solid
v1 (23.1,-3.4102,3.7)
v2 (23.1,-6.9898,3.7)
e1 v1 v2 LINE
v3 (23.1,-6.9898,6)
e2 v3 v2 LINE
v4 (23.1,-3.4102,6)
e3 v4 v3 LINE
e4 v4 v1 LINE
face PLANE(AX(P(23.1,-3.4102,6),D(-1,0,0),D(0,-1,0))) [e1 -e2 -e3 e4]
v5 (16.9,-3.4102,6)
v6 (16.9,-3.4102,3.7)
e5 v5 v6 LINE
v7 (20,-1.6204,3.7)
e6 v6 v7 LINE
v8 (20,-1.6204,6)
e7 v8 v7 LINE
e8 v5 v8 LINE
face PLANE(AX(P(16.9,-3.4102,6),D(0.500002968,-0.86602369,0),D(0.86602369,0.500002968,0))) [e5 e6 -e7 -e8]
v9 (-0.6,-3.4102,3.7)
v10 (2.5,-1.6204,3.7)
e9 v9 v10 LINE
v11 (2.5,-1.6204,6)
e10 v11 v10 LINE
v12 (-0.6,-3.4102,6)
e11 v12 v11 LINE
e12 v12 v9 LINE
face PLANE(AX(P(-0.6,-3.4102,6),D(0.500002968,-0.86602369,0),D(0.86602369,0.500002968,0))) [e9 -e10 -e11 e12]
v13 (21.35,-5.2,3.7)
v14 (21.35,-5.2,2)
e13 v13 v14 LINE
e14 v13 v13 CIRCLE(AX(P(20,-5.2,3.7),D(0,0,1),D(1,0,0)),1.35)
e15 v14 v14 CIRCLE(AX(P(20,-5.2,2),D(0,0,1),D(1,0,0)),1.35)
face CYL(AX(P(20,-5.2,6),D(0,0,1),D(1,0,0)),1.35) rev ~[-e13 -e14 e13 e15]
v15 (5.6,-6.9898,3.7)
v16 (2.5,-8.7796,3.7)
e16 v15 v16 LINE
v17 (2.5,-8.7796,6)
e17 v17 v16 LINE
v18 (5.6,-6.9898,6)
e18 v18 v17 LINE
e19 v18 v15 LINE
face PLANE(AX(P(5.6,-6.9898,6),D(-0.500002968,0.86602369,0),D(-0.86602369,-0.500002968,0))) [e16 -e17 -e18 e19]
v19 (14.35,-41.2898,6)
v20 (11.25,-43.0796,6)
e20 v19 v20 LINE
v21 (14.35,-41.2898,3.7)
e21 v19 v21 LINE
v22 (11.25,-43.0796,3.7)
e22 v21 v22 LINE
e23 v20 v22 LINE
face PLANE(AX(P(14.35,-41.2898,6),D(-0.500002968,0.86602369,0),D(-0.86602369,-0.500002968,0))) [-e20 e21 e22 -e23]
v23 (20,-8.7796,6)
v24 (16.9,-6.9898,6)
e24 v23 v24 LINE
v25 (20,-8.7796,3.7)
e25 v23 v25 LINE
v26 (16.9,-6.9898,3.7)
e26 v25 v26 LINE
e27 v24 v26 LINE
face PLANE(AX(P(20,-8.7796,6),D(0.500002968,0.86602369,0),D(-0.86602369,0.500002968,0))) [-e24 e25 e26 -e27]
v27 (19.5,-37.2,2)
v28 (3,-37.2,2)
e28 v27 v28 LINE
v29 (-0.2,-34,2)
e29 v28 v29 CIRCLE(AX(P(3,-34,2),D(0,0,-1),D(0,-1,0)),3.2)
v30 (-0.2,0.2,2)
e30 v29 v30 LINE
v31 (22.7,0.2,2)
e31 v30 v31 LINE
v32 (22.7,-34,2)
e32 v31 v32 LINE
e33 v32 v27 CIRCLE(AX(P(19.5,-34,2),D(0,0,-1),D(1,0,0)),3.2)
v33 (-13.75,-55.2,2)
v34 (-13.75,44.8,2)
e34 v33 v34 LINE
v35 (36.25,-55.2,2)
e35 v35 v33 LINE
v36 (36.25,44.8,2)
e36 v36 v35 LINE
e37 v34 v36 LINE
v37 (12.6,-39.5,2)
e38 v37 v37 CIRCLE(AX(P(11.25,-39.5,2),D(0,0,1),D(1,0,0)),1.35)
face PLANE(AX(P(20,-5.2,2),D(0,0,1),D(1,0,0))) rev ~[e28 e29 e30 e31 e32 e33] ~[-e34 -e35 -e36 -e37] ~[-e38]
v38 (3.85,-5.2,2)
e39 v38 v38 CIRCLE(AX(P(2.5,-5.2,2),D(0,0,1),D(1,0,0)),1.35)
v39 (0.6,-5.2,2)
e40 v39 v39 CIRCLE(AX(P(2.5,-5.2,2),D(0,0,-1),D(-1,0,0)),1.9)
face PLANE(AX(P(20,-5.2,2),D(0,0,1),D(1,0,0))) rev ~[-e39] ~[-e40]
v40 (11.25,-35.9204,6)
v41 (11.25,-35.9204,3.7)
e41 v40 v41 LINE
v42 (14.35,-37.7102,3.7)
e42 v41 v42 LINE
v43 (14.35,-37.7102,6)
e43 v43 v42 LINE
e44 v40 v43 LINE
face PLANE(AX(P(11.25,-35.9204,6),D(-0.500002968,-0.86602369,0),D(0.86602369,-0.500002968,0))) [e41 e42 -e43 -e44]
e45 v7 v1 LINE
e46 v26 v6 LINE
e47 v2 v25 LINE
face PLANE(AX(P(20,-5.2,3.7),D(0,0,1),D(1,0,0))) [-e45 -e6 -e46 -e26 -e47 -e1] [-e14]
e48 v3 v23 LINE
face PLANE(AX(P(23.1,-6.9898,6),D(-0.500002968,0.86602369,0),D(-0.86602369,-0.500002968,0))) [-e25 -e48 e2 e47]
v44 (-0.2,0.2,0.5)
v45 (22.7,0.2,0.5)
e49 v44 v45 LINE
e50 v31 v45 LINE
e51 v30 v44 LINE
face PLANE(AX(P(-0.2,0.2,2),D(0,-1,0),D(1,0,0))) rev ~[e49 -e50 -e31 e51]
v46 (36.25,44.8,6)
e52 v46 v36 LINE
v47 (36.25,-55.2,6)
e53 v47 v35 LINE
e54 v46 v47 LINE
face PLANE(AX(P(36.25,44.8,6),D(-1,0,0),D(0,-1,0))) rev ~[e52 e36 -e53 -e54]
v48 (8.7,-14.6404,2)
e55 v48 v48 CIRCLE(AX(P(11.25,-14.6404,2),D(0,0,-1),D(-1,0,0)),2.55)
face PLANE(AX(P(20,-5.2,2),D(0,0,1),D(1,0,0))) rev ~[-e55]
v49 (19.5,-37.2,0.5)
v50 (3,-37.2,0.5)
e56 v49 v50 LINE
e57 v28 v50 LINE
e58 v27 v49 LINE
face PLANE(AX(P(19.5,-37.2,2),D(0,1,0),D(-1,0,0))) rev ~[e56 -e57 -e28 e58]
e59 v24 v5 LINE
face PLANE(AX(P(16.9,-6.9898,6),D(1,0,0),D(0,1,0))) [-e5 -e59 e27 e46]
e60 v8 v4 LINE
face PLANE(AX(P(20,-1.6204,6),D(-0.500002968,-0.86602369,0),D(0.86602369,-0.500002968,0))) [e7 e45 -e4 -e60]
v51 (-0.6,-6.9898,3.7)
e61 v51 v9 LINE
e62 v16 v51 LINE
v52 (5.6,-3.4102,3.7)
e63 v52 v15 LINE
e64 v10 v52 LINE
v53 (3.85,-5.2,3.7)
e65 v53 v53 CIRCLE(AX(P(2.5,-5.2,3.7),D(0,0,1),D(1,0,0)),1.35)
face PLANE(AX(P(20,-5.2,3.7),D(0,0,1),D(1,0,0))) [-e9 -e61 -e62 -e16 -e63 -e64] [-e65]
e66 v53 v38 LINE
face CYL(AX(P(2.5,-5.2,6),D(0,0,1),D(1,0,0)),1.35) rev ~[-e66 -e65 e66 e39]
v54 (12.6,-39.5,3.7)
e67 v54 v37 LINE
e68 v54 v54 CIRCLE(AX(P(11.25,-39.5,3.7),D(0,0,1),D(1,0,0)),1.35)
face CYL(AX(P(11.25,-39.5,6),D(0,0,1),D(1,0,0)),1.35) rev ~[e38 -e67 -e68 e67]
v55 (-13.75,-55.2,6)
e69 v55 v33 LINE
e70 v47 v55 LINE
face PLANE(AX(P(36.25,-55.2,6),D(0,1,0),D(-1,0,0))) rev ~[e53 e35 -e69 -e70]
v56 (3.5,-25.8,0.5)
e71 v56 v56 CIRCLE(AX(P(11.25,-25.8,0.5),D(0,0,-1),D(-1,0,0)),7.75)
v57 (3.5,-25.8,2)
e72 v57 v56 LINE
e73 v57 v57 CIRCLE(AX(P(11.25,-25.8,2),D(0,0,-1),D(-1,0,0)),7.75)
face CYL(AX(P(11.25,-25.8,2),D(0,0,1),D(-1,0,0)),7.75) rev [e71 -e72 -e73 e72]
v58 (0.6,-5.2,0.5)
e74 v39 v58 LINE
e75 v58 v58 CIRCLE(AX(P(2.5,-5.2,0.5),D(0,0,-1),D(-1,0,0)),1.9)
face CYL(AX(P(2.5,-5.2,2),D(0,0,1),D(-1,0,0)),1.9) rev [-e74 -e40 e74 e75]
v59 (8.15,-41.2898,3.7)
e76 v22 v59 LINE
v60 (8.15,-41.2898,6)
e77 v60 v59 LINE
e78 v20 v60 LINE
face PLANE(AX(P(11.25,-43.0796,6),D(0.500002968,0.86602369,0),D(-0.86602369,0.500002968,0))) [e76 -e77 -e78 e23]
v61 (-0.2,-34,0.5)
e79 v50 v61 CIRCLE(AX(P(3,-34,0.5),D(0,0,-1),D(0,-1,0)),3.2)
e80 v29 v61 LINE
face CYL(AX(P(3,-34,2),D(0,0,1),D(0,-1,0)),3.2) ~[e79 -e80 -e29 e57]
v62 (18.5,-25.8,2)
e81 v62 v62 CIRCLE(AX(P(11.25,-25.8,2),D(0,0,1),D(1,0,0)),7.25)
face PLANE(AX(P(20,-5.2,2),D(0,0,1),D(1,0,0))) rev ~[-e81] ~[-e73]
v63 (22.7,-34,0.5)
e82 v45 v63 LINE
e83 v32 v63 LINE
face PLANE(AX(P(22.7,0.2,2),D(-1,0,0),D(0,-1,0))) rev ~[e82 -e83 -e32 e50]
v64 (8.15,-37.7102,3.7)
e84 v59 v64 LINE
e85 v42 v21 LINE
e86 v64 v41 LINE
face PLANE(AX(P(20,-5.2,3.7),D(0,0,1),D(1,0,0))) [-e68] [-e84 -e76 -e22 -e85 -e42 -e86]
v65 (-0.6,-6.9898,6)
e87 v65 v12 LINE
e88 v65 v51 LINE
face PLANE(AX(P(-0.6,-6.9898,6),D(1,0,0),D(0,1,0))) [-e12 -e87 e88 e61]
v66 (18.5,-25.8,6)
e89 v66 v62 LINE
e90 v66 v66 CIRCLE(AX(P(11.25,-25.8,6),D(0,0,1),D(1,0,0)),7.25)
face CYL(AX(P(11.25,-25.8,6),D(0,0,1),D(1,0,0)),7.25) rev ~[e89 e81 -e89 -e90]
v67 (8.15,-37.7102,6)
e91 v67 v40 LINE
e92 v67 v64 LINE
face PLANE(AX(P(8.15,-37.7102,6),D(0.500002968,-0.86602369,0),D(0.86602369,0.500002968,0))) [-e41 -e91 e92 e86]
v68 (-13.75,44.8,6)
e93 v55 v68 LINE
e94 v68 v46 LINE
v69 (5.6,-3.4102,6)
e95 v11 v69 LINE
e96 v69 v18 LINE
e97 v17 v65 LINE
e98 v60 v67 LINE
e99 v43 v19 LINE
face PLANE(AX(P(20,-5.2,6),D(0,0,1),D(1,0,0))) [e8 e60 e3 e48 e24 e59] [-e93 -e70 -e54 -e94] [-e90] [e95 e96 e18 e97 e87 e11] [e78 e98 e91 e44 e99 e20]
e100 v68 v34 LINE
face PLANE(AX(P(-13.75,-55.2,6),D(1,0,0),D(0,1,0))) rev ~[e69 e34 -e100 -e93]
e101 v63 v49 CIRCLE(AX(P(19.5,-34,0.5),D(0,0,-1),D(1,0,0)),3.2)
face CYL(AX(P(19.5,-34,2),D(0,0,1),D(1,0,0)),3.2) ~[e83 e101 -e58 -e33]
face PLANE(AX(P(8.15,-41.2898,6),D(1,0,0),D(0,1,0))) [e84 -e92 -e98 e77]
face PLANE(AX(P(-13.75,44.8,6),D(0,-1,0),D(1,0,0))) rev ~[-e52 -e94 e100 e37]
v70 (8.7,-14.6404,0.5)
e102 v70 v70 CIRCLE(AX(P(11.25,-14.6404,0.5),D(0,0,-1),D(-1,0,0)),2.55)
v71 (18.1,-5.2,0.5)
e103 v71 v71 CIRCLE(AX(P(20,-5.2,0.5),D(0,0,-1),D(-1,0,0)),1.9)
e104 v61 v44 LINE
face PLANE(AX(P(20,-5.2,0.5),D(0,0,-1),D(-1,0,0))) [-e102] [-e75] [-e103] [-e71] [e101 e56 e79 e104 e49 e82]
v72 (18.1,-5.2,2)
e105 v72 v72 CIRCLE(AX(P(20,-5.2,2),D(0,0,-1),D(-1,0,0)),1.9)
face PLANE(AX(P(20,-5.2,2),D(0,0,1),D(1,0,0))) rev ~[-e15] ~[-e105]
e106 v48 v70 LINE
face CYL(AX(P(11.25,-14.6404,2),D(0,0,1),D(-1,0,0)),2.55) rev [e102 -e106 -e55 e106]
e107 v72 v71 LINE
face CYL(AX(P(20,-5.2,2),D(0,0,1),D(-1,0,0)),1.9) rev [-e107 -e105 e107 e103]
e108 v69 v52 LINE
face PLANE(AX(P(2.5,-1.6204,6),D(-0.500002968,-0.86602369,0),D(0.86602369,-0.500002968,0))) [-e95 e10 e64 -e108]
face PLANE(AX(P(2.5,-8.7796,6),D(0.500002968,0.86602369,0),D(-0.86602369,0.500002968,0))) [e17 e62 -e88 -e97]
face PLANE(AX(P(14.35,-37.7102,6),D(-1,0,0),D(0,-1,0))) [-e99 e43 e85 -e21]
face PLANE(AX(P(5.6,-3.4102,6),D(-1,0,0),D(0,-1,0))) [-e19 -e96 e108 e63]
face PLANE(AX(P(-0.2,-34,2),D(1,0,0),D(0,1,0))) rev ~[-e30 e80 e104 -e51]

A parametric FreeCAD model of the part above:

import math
import FreeCAD as App
import Part
import Sketcher

V = App.Vector
Q = App.Units.Quantity

doc = App.newDocument("Part")
body = doc.addObject("PartDesign::Body", "Body")

sketch1 = doc.addObject("Sketcher::SketchObject", "Sketch")
body.addObject(sketch1)
sketch1.AttachmentSupport = (doc.XY_Plane, [""])
sketch1.MapMode = "FlatFace"
sketch1.AttachmentOffset = App.Placement(V(0, 0, 6), App.Rotation())
sketch1.addGeometry([
    Part.LineSegment(V(36.25, 44.8, 0), V(-13.75, 44.8, 0)),
    Part.LineSegment(V(-13.75, 44.8, 0), V(-13.75, -55.2, 0)),
    Part.LineSegment(V(-13.75, -55.2, 0), V(36.25, -55.2, 0)),
    Part.LineSegment(V(36.25, -55.2, 0), V(36.25, 44.8, 0)),
    Part.Circle(V(11.25, -39.5, 0), V(0, 0, 1), 1.35),
    Part.Circle(V(11.25, -25.8, 0), V(0, 0, 1), 7.25),
    Part.Circle(V(2.5, -5.2, 0), V(0, 0, 1), 1.35),
    Part.Circle(V(20, -5.2, 0), V(0, 0, 1), 1.35),
], False)
sketch1.addConstraint([
    Sketcher.Constraint("Coincident", 0, 2, 1, 1),
    Sketcher.Constraint("Coincident", 1, 2, 2, 1),
    Sketcher.Constraint("Coincident", 2, 2, 3, 1),
    Sketcher.Constraint("Coincident", 3, 2, 0, 1),
    Sketcher.Constraint("Horizontal", 0),
    Sketcher.Constraint("Vertical", 1),
    Sketcher.Constraint("Horizontal", 2),
    Sketcher.Constraint("Vertical", 3),
    Sketcher.Constraint("Equal", 4, 6),
    Sketcher.Constraint("Equal", 6, 7),
    Sketcher.Constraint("Horizontal", 6, 3, 7, 3),
    Sketcher.Constraint("Vertical", 4, 3, 5, 3),
    Sketcher.Constraint("Diameter", 4, 2.7),
    Sketcher.Constraint("Diameter", 5, 14.5),
    Sketcher.Constraint("DistanceX", 0, 2, 0, 1, 50.0),
    Sketcher.Constraint("DistanceY", 1, 2, 1, 1, 100.0),
    Sketcher.Constraint("DistanceY", 6, 3, 0, 2, 50.0),
    Sketcher.Constraint("DistanceY", 5, 3, 6, 3, 20.6),
    Sketcher.Constraint("DistanceY", 4, 3, 6, 3, 34.3),
    Sketcher.Constraint("DistanceX", 6, 3, 7, 3, 17.5),
    Sketcher.Constraint("DistanceX", 0, 2, 6, 3, 16.25),
    Sketcher.Constraint("DistanceX", -1, 1, 7, 3, 20.0),
    Sketcher.Constraint("DistanceX", 0, 2, 5, 3, 25.0),
    Sketcher.Constraint("DistanceY", 4, 3, -1, 1, 39.5),
])
pad1 = doc.addObject("PartDesign::Pad", "Pad")
body.addObject(pad1)
pad1.Profile = sketch1
pad1.Length = 4
pad1.Reversed = True

sketch2 = doc.addObject("Sketcher::SketchObject", "Sketch001")
body.addObject(sketch2)
sketch2.AttachmentSupport = (doc.XY_Plane, [""])
sketch2.MapMode = "FlatFace"
sketch2.AttachmentOffset = App.Placement(V(0, 0, 6), App.Rotation())
sketch2.addGeometry([
    Part.LineSegment(V(2.5, -8.7796, 0), V(5.6, -6.9898, 0)),
    Part.LineSegment(V(5.6, -6.9898, 0), V(5.6, -3.4102, 0)),
    Part.LineSegment(V(5.6, -3.4102, 0), V(2.5, -1.6204, 0)),
    Part.LineSegment(V(2.5, -1.6204, 0), V(-0.6, -3.4102, 0)),
    Part.LineSegment(V(-0.6, -3.4102, 0), V(-0.6, -6.9898, 0)),
    Part.LineSegment(V(-0.6, -6.9898, 0), V(2.5, -8.7796, 0)),
    Part.LineSegment(V(20, -8.7796, 0), V(23.1, -6.9898, 0)),
    Part.LineSegment(V(23.1, -6.9898, 0), V(23.1, -3.4102, 0)),
    Part.LineSegment(V(23.1, -3.4102, 0), V(20, -1.6204, 0)),
    Part.LineSegment(V(20, -1.6204, 0), V(16.9, -3.4102, 0)),
    Part.LineSegment(V(16.9, -3.4102, 0), V(16.9, -6.9898, 0)),
    Part.LineSegment(V(16.9, -6.9898, 0), V(20, -8.7796, 0)),
    Part.LineSegment(V(11.25, -43.0796, 0), V(14.35, -41.2898, 0)),
    Part.LineSegment(V(14.35, -41.2898, 0), V(14.35, -37.7102, 0)),
    Part.LineSegment(V(14.35, -37.7102, 0), V(11.25, -35.9204, 0)),
    Part.LineSegment(V(11.25, -35.9204, 0), V(8.15, -37.7102, 0)),
    Part.LineSegment(V(8.15, -37.7102, 0), V(8.15, -41.2898, 0)),
    Part.LineSegment(V(8.15, -41.2898, 0), V(11.25, -43.0796, 0)),
], False)
sketch2.addConstraint([
    Sketcher.Constraint("Coincident", 0, 2, 1, 1),
    Sketcher.Constraint("Coincident", 1, 2, 2, 1),
    Sketcher.Constraint("Coincident", 2, 2, 3, 1),
    Sketcher.Constraint("Coincident", 3, 2, 4, 1),
    Sketcher.Constraint("Coincident", 4, 2, 5, 1),
    Sketcher.Constraint("Coincident", 5, 2, 0, 1),
    Sketcher.Constraint("Coincident", 6, 2, 7, 1),
    Sketcher.Constraint("Coincident", 7, 2, 8, 1),
    Sketcher.Constraint("Coincident", 8, 2, 9, 1),
    Sketcher.Constraint("Coincident", 9, 2, 10, 1),
    Sketcher.Constraint("Coincident", 10, 2, 11, 1),
    Sketcher.Constraint("Coincident", 11, 2, 6, 1),
    Sketcher.Constraint("Coincident", 12, 2, 13, 1),
    Sketcher.Constraint("Coincident", 13, 2, 14, 1),
    Sketcher.Constraint("Coincident", 14, 2, 15, 1),
    Sketcher.Constraint("Coincident", 15, 2, 16, 1),
    Sketcher.Constraint("Coincident", 16, 2, 17, 1),
    Sketcher.Constraint("Coincident", 17, 2, 12, 1),
    Sketcher.Constraint("Vertical", 1),
    Sketcher.Constraint("Vertical", 4),
    Sketcher.Constraint("Vertical", 7),
    Sketcher.Constraint("Vertical", 10),
    Sketcher.Constraint("Vertical", 13),
    Sketcher.Constraint("Vertical", 16),
    Sketcher.Constraint("Parallel", 0, 3),
    Sketcher.Constraint("Parallel", 2, 5),
    Sketcher.Constraint("Parallel", 3, 6),
    Sketcher.Constraint("Parallel", 5, 8),
    Sketcher.Constraint("Parallel", 6, 9),
    Sketcher.Constraint("Parallel", 8, 11),
    Sketcher.Constraint("Parallel", 9, 12),
    Sketcher.Constraint("Parallel", 11, 14),
    Sketcher.Constraint("Parallel", 12, 15),
    Sketcher.Constraint("Parallel", 14, 17),
    Sketcher.Constraint("Horizontal", 1, 2, 3, 2),
    Sketcher.Constraint("Horizontal", 0, 2, 4, 2),
    Sketcher.Constraint("Horizontal", 4, 2, 6, 2),
    Sketcher.Constraint("Horizontal", 3, 2, 7, 2),
    Sketcher.Constraint("Horizontal", 2, 2, 8, 2),
    Sketcher.Constraint("Horizontal", 7, 2, 9, 2),
    Sketcher.Constraint("Horizontal", 6, 2, 10, 2),
    Sketcher.Constraint("Horizontal", 13, 2, 15, 2),
    Sketcher.Constraint("Horizontal", 12, 2, 16, 2),
    Sketcher.Constraint("Vertical", 2, 2, 5, 2),
    Sketcher.Constraint("Equal", 10, 13),
    Sketcher.Constraint("Equal", 11, 12),
    Sketcher.Constraint("DistanceX", 3, 2, 1, 2, 6.2),
    Sketcher.Constraint("Angle", 0, Q("30.0002 deg")),
    Sketcher.Constraint("DistanceX", -1, 1, 8, 2, 20.0),
    Sketcher.Constraint("DistanceX", -1, 1, 0, 2, 5.6),
    Sketcher.Constraint("DistanceY", 12, 2, 10, 2, 34.3),
    Sketcher.Constraint("DistanceX", -1, 1, 12, 2, 14.35),
    Sketcher.Constraint("DistanceY", 1, 1, 1, 2, 3.5796),
    Sketcher.Constraint("DistanceY", 0, 2, -1, 1, 6.9898),
])
pocket1 = doc.addObject("PartDesign::Pocket", "Pocket")
body.addObject(pocket1)
pocket1.Profile = sketch2
pocket1.Length = 2.3

sketch3 = doc.addObject("Sketcher::SketchObject", "Sketch002")
body.addObject(sketch3)
sketch3.AttachmentSupport = (doc.XY_Plane, [""])
sketch3.MapMode = "FlatFace"
sketch3.AttachmentOffset = App.Placement(V(0, 0, 2), App.Rotation())
sketch3.addGeometry([
    Part.LineSegment(V(22.7, 0.2, 0), V(22.7, -34, 0)),
    Part.ArcOfCircle(Part.Circle(V(19.5, -34, 0), V(0, 0, 1), 3.2), math.radians(-90), math.radians(0)),
    Part.LineSegment(V(19.5, -37.2, 0), V(3, -37.2, 0)),
    Part.ArcOfCircle(Part.Circle(V(3, -34, 0), V(0, 0, 1), 3.2), math.radians(180), math.radians(270)),
    Part.LineSegment(V(-0.2, -34, 0), V(-0.2, 0.2, 0)),
    Part.LineSegment(V(-0.2, 0.2, 0), V(22.7, 0.2, 0)),
    Part.Circle(V(11.25, -25.8, 0), V(0, 0, 1), 7.75),
    Part.Circle(V(20, -5.2, 0), V(0, 0, 1), 1.9),
    Part.Circle(V(11.25, -14.6404, 0), V(0, 0, 1), 2.55),
    Part.Circle(V(2.5, -5.2, 0), V(0, 0, 1), 1.9),
], False)
sketch3.addConstraint([
    Sketcher.Constraint("Tangent", 0, 2, 1, 2),
    Sketcher.Constraint("Tangent", 1, 1, 2, 1),
    Sketcher.Constraint("Tangent", 2, 2, 3, 2),
    Sketcher.Constraint("Tangent", 3, 1, 4, 1),
    Sketcher.Constraint("Coincident", 4, 2, 5, 1),
    Sketcher.Constraint("Coincident", 5, 2, 0, 1),
    Sketcher.Constraint("Vertical", 0),
    Sketcher.Constraint("Horizontal", 2),
    Sketcher.Constraint("Vertical", 4),
    Sketcher.Constraint("Horizontal", 5),
    Sketcher.Constraint("Equal", 1, 3),
    Sketcher.Constraint("Equal", 7, 9),
    Sketcher.Constraint("Horizontal", 7, 3, 9, 3),
    Sketcher.Constraint("Vertical", 6, 3, 8, 3),
    Sketcher.Constraint("Diameter", 6, 15.5),
    Sketcher.Constraint("Diameter", 7, 3.8),
    Sketcher.Constraint("Diameter", 8, 5.1),
    Sketcher.Constraint("Radius", 1, 3.2),
    Sketcher.Constraint("DistanceX", 1, 3, 7, 3, 0.5),
    Sketcher.Constraint("DistanceX", 9, 3, 3, 3, 0.5),
    Sketcher.Constraint("DistanceX", 2, 2, 2, 1, 16.5),
    Sketcher.Constraint("DistanceY", 0, 2, 0, 1, 34.2),
    Sketcher.Constraint("DistanceY", 1, 3, -1, 1, 34.0),
    Sketcher.Constraint("DistanceX", -1, 1, 3, 3, 3.0),
    Sketcher.Constraint("DistanceY", 6, 3, 4, 2, 26.0),
    Sketcher.Constraint("DistanceY", 7, 3, -1, 1, 5.2),
    Sketcher.Constraint("DistanceX", -1, 1, 6, 3, 11.25),
    Sketcher.Constraint("DistanceY", 8, 3, -1, 1, 14.6404),
])
pad2 = doc.addObject("PartDesign::Pad", "Pad001")
body.addObject(pad2)
pad2.Profile = sketch3
pad2.Length = 1.5
pad2.Reversed = True

doc.recompute()
